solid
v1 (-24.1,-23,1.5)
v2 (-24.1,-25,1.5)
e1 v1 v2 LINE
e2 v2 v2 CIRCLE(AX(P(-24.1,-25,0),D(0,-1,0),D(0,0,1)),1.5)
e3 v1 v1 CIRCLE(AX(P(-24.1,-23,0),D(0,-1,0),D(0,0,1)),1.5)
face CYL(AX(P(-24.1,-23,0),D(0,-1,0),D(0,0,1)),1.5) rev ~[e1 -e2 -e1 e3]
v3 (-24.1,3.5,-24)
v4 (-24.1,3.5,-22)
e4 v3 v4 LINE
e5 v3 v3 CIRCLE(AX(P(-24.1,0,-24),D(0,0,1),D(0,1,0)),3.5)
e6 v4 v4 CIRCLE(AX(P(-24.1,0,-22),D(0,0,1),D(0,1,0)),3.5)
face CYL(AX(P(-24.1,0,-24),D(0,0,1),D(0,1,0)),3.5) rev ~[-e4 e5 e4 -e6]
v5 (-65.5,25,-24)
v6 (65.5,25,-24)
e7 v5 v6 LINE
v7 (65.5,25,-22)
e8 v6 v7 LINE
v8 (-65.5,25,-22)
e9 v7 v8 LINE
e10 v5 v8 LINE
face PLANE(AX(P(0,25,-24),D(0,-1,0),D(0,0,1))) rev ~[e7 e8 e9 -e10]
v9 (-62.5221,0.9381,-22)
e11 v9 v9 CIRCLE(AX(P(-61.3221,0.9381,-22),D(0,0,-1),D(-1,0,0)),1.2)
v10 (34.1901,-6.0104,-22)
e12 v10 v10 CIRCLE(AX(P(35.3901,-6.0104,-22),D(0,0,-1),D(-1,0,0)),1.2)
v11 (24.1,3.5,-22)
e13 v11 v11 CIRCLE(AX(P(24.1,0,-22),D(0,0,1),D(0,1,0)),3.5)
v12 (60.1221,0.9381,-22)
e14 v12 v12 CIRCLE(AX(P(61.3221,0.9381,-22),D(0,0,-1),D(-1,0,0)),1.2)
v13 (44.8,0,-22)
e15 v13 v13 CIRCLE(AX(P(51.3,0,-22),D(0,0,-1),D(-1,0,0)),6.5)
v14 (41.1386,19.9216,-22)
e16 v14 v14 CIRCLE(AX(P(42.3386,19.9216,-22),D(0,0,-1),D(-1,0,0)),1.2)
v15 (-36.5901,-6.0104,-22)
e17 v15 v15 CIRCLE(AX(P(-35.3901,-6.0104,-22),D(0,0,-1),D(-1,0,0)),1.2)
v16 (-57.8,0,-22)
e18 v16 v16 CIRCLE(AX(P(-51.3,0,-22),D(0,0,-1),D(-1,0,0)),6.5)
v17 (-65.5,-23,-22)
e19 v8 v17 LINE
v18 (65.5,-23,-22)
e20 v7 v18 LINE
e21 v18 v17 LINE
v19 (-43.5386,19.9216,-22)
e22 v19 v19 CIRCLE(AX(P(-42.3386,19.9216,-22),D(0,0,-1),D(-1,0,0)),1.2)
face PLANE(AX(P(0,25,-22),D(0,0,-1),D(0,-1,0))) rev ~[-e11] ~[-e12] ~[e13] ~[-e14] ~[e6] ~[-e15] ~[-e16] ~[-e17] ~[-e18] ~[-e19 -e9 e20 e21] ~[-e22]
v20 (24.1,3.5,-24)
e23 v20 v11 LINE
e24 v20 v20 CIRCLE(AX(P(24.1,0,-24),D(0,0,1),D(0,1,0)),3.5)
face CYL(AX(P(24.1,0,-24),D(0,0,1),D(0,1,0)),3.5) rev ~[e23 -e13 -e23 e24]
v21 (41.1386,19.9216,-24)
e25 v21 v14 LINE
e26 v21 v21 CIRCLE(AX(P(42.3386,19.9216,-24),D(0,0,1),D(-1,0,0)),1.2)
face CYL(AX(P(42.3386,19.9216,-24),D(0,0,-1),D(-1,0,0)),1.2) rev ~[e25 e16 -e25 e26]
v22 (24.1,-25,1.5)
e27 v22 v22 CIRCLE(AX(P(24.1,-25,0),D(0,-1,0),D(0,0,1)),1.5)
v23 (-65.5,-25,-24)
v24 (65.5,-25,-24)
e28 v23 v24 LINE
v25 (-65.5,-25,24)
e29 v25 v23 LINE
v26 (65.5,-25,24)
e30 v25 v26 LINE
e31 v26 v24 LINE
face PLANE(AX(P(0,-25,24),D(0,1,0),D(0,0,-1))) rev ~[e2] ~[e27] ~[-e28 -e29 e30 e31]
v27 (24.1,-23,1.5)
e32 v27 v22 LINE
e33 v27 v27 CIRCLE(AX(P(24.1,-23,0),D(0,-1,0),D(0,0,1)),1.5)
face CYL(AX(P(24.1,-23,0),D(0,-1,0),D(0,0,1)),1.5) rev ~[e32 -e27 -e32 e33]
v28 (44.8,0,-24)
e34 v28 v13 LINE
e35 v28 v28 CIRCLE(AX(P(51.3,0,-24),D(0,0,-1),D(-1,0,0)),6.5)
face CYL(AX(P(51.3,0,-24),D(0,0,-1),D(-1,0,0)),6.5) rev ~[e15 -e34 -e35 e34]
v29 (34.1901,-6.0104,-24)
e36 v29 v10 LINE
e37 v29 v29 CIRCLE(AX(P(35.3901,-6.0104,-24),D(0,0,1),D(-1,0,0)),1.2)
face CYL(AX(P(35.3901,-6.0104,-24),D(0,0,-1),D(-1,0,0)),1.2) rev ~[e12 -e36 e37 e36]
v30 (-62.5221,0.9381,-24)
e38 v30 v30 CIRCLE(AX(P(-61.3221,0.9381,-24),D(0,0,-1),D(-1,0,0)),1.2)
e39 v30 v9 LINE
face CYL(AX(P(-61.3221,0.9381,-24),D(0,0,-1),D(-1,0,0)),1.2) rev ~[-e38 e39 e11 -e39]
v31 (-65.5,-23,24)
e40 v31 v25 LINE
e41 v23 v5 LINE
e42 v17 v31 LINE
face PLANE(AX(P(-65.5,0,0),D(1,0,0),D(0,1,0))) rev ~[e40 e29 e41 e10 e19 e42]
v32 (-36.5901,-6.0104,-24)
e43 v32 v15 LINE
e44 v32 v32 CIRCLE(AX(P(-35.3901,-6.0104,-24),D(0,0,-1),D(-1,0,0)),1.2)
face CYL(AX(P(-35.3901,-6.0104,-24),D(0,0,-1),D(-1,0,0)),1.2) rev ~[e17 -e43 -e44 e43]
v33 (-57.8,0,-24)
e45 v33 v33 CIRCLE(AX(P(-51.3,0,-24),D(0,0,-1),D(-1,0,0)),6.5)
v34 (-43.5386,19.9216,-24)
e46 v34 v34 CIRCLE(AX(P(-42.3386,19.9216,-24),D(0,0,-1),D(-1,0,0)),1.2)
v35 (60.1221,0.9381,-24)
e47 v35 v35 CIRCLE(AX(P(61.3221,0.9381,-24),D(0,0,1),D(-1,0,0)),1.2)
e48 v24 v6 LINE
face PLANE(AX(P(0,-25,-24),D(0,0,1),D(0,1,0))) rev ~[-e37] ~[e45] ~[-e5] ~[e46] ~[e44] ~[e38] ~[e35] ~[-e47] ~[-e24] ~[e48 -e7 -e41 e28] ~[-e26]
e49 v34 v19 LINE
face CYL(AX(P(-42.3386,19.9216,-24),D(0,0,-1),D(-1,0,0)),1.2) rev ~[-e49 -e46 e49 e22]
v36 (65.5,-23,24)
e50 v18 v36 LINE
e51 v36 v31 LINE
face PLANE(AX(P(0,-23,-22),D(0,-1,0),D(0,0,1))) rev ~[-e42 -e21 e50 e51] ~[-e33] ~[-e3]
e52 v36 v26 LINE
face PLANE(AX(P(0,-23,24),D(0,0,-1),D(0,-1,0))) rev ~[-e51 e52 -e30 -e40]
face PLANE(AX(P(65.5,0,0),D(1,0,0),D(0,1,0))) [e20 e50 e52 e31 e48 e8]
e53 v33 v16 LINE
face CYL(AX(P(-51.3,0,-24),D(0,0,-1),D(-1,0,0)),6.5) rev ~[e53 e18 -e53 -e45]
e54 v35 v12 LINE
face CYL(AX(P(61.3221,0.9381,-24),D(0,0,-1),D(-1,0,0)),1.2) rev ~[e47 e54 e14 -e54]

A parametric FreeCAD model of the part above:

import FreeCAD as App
import Part
import Sketcher
Q = App.Units.Quantity

doc = App.newDocument("Part")
body = doc.addObject("PartDesign::Body", "Body")

sketch1 = body.newObject("Sketcher::SketchObject", "Sketch")
sketch1.AttachmentSupport = (doc.getObject("YZ_Plane"), [""])
sketch1.MapMode = "FlatFace"
sketch1.addGeometry(Part.LineSegment(App.Vector(-23, 24, 0), App.Vector(-25, 24, 0)), False)
sketch1.addGeometry(Part.LineSegment(App.Vector(-25, 24, 0), App.Vector(-25, -24, 0)), False)
sketch1.addGeometry(Part.LineSegment(App.Vector(-25, -24, 0), App.Vector(25, -24, 0)), False)
sketch1.addGeometry(Part.LineSegment(App.Vector(25, -24, 0), App.Vector(25, -22, 0)), False)
sketch1.addGeometry(Part.LineSegment(App.Vector(25, -22, 0), App.Vector(-23, -22, 0)), False)
sketch1.addGeometry(Part.LineSegment(App.Vector(-23, -22, 0), App.Vector(-23, 24, 0)), False)
sketch1.addConstraint(Sketcher.Constraint("Coincident", 0, 2, 1, 1))
sketch1.addConstraint(Sketcher.Constraint("Coincident", 1, 2, 2, 1))
sketch1.addConstraint(Sketcher.Constraint("Coincident", 2, 2, 3, 1))
sketch1.addConstraint(Sketcher.Constraint("Coincident", 3, 2, 4, 1))
sketch1.addConstraint(Sketcher.Constraint("Coincident", 4, 2, 5, 1))
sketch1.addConstraint(Sketcher.Constraint("Coincident", 5, 2, 0, 1))
sketch1.addConstraint(Sketcher.Constraint("Horizontal", 0))
sketch1.addConstraint(Sketcher.Constraint("Vertical", 1))
sketch1.addConstraint(Sketcher.Constraint("Horizontal", 2))
sketch1.addConstraint(Sketcher.Constraint("Vertical", 3))
sketch1.addConstraint(Sketcher.Constraint("Horizontal", 4))
sketch1.addConstraint(Sketcher.Constraint("Vertical", 5))
sketch1.addConstraint(Sketcher.Constraint("Symmetric", 0, 2, 2, 2, -1, 1))
sketch1.addConstraint(Sketcher.Constraint("Equal", 4, 1))
sketch1.addConstraint(Sketcher.Constraint("Equal", 0, 3))
sketch1.addConstraint(Sketcher.Constraint("DistanceX", 0, 2, 0, 1, Q("2 mm")))
sketch1.addConstraint(Sketcher.Constraint("DistanceX", 2, 1, 2, 2, Q("50 mm")))
pad1 = body.newObject("PartDesign::Pad", "Pad")
pad1.Profile = sketch1
pad1.Length = 131
pad1.Midplane = True

sketch2 = body.newObject("Sketcher::SketchObject", "Sketch001")
sketch2.AttachmentSupport = (doc.getObject("XY_Plane"), [""])
sketch2.MapMode = "FlatFace"
sketch2.AttachmentOffset = App.Placement(App.Vector(0, 0, -24), App.Rotation())
sketch2.addGeometry(Part.Circle(App.Vector(24.1, 0, 0), App.Vector(0, 0, 1), 3.5), False)
sketch2.addGeometry(Part.Circle(App.Vector(-24.1, 0, 0), App.Vector(0, 0, 1), 3.5), False)
sketch2.addConstraint(Sketcher.Constraint("Equal", 0, 1))
sketch2.addConstraint(Sketcher.Constraint("Symmetric", 0, 3, 1, 3, -1, 1))
sketch2.addConstraint(Sketcher.Constraint("PointOnObject", 0, 3, -1))
sketch2.addConstraint(Sketcher.Constraint("Diameter", 0, Q("7 mm")))
sketch2.addConstraint(Sketcher.Constraint("DistanceX", -1, 1, 0, 3, Q("24.1 mm")))
doc.recompute()
hole = body.newObject("PartDesign::Hole", "Hole")
hole.Profile = sketch2
hole.ThreadType = "None"
hole.Diameter = 7
hole.DepthType = "Dimension"
hole.Depth = 2
hole.DrillPoint = "Flat"
hole.Reversed = True

sketch3 = body.newObject("Sketcher::SketchObject", "Sketch002")
sketch3.AttachmentSupport = (doc.getObject("XY_Plane"), [""])
sketch3.MapMode = "FlatFace"
sketch3.AttachmentOffset = App.Placement(App.Vector(0, 0, -24), App.Rotation())
sketch3.addGeometry(Part.Circle(App.Vector(51.3, 0, 0), App.Vector(0, 0, 1), 1.75), False)
sketch3.addGeometry(Part.Circle(App.Vector(-51.3, 0, 0), App.Vector(0, 0, 1), 1.75), False)
sketch3.addConstraint(Sketcher.Constraint("Equal", 0, 1))
sketch3.addConstraint(Sketcher.Constraint("Symmetric", 0, 3, 1, 3, -1, 1))
sketch3.addConstraint(Sketcher.Constraint("PointOnObject", 0, 3, -1))
sketch3.addConstraint(Sketcher.Constraint("Diameter", 0, Q("3.5 mm")))
sketch3.addConstraint(Sketcher.Constraint("DistanceX", -1, 1, 0, 3, Q("51.3 mm")))
doc.recompute()
hole2 = body.newObject("PartDesign::Hole", "Hole001")
hole2.Profile = sketch3
hole2.ThreadType = "None"
hole2.Diameter = 3.5
hole2.DepthType = "Dimension"
hole2.Depth = 2
hole2.DrillPoint = "Flat"
hole2.Reversed = True

sketch4 = body.newObject("Sketcher::SketchObject", "Sketch003")
sketch4.AttachmentSupport = (doc.getObject("XZ_Plane"), [""])
sketch4.MapMode = "FlatFace"
sketch4.AttachmentOffset = App.Placement(App.Vector(0, 0, 23), App.Rotation())
sketch4.addGeometry(Part.Circle(App.Vector(-24.1, 0, 0), App.Vector(0, 0, 1), 1.5), False)
sketch4.addGeometry(Part.Circle(App.Vector(24.1, 0, 0), App.Vector(0, 0, 1), 1.5), False)
sketch4.addConstraint(Sketcher.Constraint("Equal", 0, 1))
sketch4.addConstraint(Sketcher.Constraint("Symmetric", 0, 3, 1, 3, -1, 1))
sketch4.addConstraint(Sketcher.Constraint("PointOnObject", 0, 3, -1))
sketch4.addConstraint(Sketcher.Constraint("Diameter", 0, Q("3 mm")))
sketch4.addConstraint(Sketcher.Constraint("DistanceX", 0, 3, -1, 1, Q("24.1 mm")))
doc.recompute()
hole3 = body.newObject("PartDesign::Hole", "Hole002")
hole3.Profile = sketch4
hole3.ThreadType = "None"
hole3.Diameter = 3
hole3.DepthType = "Dimension"
hole3.Depth = 2
hole3.DrillPoint = "Flat"
hole3.Reversed = True

sketch5 = body.newObject("Sketcher::SketchObject", "Sketch004")
sketch5.AttachmentSupport = (doc.getObject("XY_Plane"), [""])
sketch5.MapMode = "FlatFace"
sketch5.AttachmentOffset = App.Placement(App.Vector(0, 0, -24), App.Rotation())
sketch5.addGeometry(Part.Circle(App.Vector(51.3, 0, 0), App.Vector(0, 0, 1), 3.5), False)
sketch5.addGeometry(Part.Circle(App.Vector(51.3, 0, 0), App.Vector(0, 0, 1), 1.75), False)
sketch5.addConstraint(Sketcher.Constraint("Coincident", 1, 3, 0, 3))
sketch5.addConstraint(Sketcher.Constraint("PointOnObject", 0, 3, -1))
sketch5.addConstraint(Sketcher.Constraint("Diameter", 0, Q("7 mm")))
sketch5.addConstraint(Sketcher.Constraint("Diameter", 1, Q("3.5 mm")))
sketch5.addConstraint(Sketcher.Constraint("DistanceX", -1, 1, 0, 3, Q("51.3 mm")))
pocket1 = body.newObject("PartDesign::Pocket", "Pocket")
pocket1.Profile = sketch5
pocket1.Length = 2
pocket1.Reversed = True

sketch6 = body.newObject("Sketcher::SketchObject", "Sketch005")
sketch6.AttachmentSupport = (doc.getObject("XY_Plane"), [""])
sketch6.MapMode = "FlatFace"
sketch6.AttachmentOffset = App.Placement(App.Vector(0, 0, -24), App.Rotation())
sketch6.addGeometry(Part.Circle(App.Vector(57.3104, 15.9099, 0), App.Vector(0, 0, 1), 1.2), False)
sketch6.addGeometry(Part.Circle(App.Vector(35.3901, -6.0104, 0), App.Vector(0, 0, 1), 1.2), False)
sketch6.addGeometry(Part.Circle(App.Vector(61.3221, 0.9381, 0), App.Vector(0, 0, 1), 1.2), False)
sketch6.addGeometry(Part.Circle(App.Vector(50.3619, -10.0221, 0), App.Vector(0, 0, 1), 1.2), False)
sketch6.addGeometry(Part.Circle(App.Vector(31.3784, 8.9614, 0), App.Vector(0, 0, 1), 1.2), False)
sketch6.addGeometry(Part.Circle(App.Vector(42.3386, 19.9216, 0), App.Vector(0, 0, 1), 1.2), False)
sketch6.addConstraint(Sketcher.Constraint("Equal", 0, 1))
sketch6.addConstraint(Sketcher.Constraint("Equal", 1, 2))
sketch6.addConstraint(Sketcher.Constraint("Equal", 2, 3))
sketch6.addConstraint(Sketcher.Constraint("Equal", 3, 4))
sketch6.addConstraint(Sketcher.Constraint("Equal", 4, 5))
sketch6.addConstraint(Sketcher.Constraint("Diameter", 0, Q("2.4 mm")))
sketch6.addConstraint(Sketcher.Constraint("DistanceY", -1, 1, 0, 3, Q("15.91 mm")))
sketch6.addConstraint(Sketcher.Constraint("DistanceX", -1, 1, 1, 3, Q("35.39 mm")))
sketch6.addConstraint(Sketcher.Constraint("DistanceX", -1, 1, 2, 3, Q("61.322 mm")))
sketch6.addConstraint(Sketcher.Constraint("DistanceY", -1, 1, 2, 3, Q("0.938 mm")))
sketch6.addConstraint(Sketcher.Constraint("DistanceX", -1, 1, 3, 3, Q("50.362 mm")))
sketch6.addConstraint(Sketcher.Constraint("DistanceY", 3, 3, -1, 1, Q("10.022 mm")))
sketch6.addConstraint(Sketcher.Constraint("DistanceX", 4, 3, 0, 3, Q("25.932 mm")))
sketch6.addConstraint(Sketcher.Constraint("DistanceY", 1, 3, 5, 3, Q("25.932 mm")))
sketch6.addConstraint(Sketcher.Constraint("DistanceX", -1, 1, 0, 3, Q("57.3104 mm")))
sketch6.addConstraint(Sketcher.Constraint("DistanceY", 1, 3, -1, 1, Q("6.0104 mm")))
sketch6.addConstraint(Sketcher.Constraint("DistanceY", -1, 1, 4, 3, Q("8.9614 mm")))
sketch6.addConstraint(Sketcher.Constraint("DistanceX", -1, 1, 5, 3, Q("42.3386 mm")))
pocket2 = body.newObject("PartDesign::Pocket", "Pocket001")
pocket2.Profile = sketch6
pocket2.Length = 2
pocket2.Reversed = True

sketch7 = body.newObject("Sketcher::SketchObject", "Sketch006")
sketch7.AttachmentSupport = (doc.getObject("XY_Plane"), [""])
sketch7.MapMode = "FlatFace"
sketch7.AttachmentOffset = App.Placement(App.Vector(0, 0, -24), App.Rotation())
sketch7.addGeometry(Part.Circle(App.Vector(31.3784, 8.9614, 0), App.Vector(0, 0, 1), 1.2), False)
sketch7.addGeometry(Part.Circle(App.Vector(57.3104, 15.9099, 0), App.Vector(0, 0, 1), 1.2), False)
sketch7.addGeometry(Part.Circle(App.Vector(50.3619, -10.0221, 0), App.Vector(0, 0, 1), 1.2), False)
sketch7.addConstraint(Sketcher.Constraint("Equal", 0, 1))
sketch7.addConstraint(Sketcher.Constraint("Equal", 1, 2))
sketch7.addConstraint(Sketcher.Constraint("Diameter", 0, Q("2.4 mm")))
sketch7.addConstraint(Sketcher.Constraint("DistanceY", -1, 1, 1, 3, Q("15.91 mm")))
sketch7.addConstraint(Sketcher.Constraint("DistanceX", -1, 1, 2, 3, Q("50.362 mm")))
sketch7.addConstraint(Sketcher.Constraint("DistanceY", 2, 3, -1, 1, Q("10.022 mm")))
sketch7.addConstraint(Sketcher.Constraint("DistanceX", 0, 3, 1, 3, Q("25.932 mm")))
sketch7.addConstraint(Sketcher.Constraint("DistanceX", -1, 1, 0, 3, Q("31.3784 mm")))
sketch7.addConstraint(Sketcher.Constraint("DistanceY", -1, 1, 0, 3, Q("8.9614 mm")))
pad2 = body.newObject("PartDesign::Pad", "Pad001")
pad2.Profile = sketch7
pad2.Length = 2

sketch8 = body.newObject("Sketcher::SketchObject", "Sketch007")
sketch8.AttachmentSupport = (doc.getObject("XY_Plane"), [""])
sketch8.MapMode = "FlatFace"
sketch8.AttachmentOffset = App.Placement(App.Vector(0, 0, -24), App.Rotation())
sketch8.addGeometry(Part.Circle(App.Vector(-61.3221, 0.9381, 0), App.Vector(0, 0, 1), 1.2), False)
sketch8.addGeometry(Part.Circle(App.Vector(-35.3901, -6.0104, 0), App.Vector(0, 0, 1), 1.2), False)
sketch8.addGeometry(Part.Circle(App.Vector(-42.3386, 19.9216, 0), App.Vector(0, 0, 1), 1.2), False)
sketch8.addGeometry(Part.Circle(App.Vector(-51.3, 0, 0), App.Vector(0, 0, 1), 3.5), False)
sketch8.addGeometry(Part.Circle(App.Vector(-51.3, 0, 0), App.Vector(0, 0, 1), 1.75), False)
sketch8.addConstraint(Sketcher.Constraint("Coincident", 4, 3, 3, 3))
sketch8.addConstraint(Sketcher.Constraint("Equal", 0, 1))
sketch8.addConstraint(Sketcher.Constraint("Equal", 1, 2))
sketch8.addConstraint(Sketcher.Constraint("PointOnObject", 3, 3, -1))
sketch8.addConstraint(Sketcher.Constraint("Diameter", 3, Q("7 mm")))
sketch8.addConstraint(Sketcher.Constraint("Diameter", 0, Q("2.4 mm")))
sketch8.addConstraint(Sketcher.Constraint("Diameter", 4, Q("3.5 mm")))
sketch8.addConstraint(Sketcher.Constraint("DistanceX", 3, 3, -1, 1, Q("51.3 mm")))
sketch8.addConstraint(Sketcher.Constraint("DistanceX", 1, 3, -1, 1, Q("35.39 mm")))
sketch8.addConstraint(Sketcher.Constraint("DistanceX", 0, 3, -1, 1, Q("61.322 mm")))
sketch8.addConstraint(Sketcher.Constraint("DistanceY", -1, 1, 0, 3, Q("0.938 mm")))
sketch8.addConstraint(Sketcher.Constraint("DistanceY", 1, 3, 2, 3, Q("25.932 mm")))
sketch8.addConstraint(Sketcher.Constraint("DistanceY", 1, 3, -1, 1, Q("6.0104 mm")))
sketch8.addConstraint(Sketcher.Constraint("DistanceX", 2, 3, -1, 1, Q("42.3386 mm")))
pocket3 = body.newObject("PartDesign::Pocket", "Pocket002")
pocket3.Profile = sketch8
pocket3.Length = 2
pocket3.Reversed = True

sketch9 = body.newObject("Sketcher::SketchObject", "Sketch008")
sketch9.AttachmentSupport = (doc.getObject("XY_Plane"), [""])
sketch9.MapMode = "FlatFace"
sketch9.AttachmentOffset = App.Placement(App.Vector(0, 0, -24), App.Rotation())
sketch9.addGeometry(Part.Circle(App.Vector(51.3, 0, 0), App.Vector(0, 0, 1), 6.5), False)
sketch9.addGeometry(Part.Circle(App.Vector(51.3, 0, 0), App.Vector(0, 0, 1), 3.5), False)
sketch9.addGeometry(Part.Circle(App.Vector(-51.3, 0, 0), App.Vector(0, 0, 1), 6.5), False)
sketch9.addGeometry(Part.Circle(App.Vector(-51.3, 0, 0), App.Vector(0, 0, 1), 3.5), False)
sketch9.addConstraint(Sketcher.Constraint("Coincident", 1, 3, 0, 3))
sketch9.addConstraint(Sketcher.Constraint("Coincident", 3, 3, 2, 3))
sketch9.addConstraint(Sketcher.Constraint("Equal", 0, 2))
sketch9.addConstraint(Sketcher.Constraint("Equal", 1, 3))
sketch9.addConstraint(Sketcher.Constraint("Symmetric", 0, 3, 2, 3, -1, 1))
sketch9.addConstraint(Sketcher.Constraint("PointOnObject", 0, 3, -1))
sketch9.addConstraint(Sketcher.Constraint("Diameter", 0, Q("13 mm")))
sketch9.addConstraint(Sketcher.Constraint("Diameter", 1, Q("7 mm")))
sketch9.addConstraint(Sketcher.Constraint("DistanceX", -1, 1, 0, 3, Q("51.3 mm")))
pocket4 = body.newObject("PartDesign::Pocket", "Pocket003")
pocket4.Profile = sketch9
pocket4.Length = 2
pocket4.Reversed = True

doc.recompute()
